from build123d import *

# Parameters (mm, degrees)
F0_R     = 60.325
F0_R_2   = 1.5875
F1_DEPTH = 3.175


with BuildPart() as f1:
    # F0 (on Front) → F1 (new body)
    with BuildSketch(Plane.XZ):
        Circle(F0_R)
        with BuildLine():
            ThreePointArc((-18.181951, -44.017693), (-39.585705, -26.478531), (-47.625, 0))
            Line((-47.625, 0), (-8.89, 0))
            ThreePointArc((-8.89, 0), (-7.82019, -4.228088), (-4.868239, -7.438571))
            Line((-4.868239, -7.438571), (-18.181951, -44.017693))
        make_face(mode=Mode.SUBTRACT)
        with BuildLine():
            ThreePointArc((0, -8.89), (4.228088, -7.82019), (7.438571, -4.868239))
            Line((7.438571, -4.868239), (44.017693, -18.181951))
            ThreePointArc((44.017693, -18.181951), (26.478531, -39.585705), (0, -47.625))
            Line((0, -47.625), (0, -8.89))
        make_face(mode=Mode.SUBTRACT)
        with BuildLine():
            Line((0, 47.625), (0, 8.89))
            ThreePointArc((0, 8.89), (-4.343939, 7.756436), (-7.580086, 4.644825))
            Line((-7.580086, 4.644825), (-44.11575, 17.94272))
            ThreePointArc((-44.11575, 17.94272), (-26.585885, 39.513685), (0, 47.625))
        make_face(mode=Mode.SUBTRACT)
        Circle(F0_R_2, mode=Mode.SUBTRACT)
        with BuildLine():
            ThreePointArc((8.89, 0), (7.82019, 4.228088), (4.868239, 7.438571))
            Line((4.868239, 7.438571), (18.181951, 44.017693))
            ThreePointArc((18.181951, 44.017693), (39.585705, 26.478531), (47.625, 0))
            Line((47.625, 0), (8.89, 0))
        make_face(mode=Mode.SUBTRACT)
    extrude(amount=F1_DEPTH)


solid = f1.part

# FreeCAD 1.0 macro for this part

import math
import FreeCAD as App
import Part
import Sketcher
Q = App.Units.Quantity

doc = App.newDocument("Part")
body = doc.addObject("PartDesign::Body", "Body")

sketch1 = body.newObject("Sketcher::SketchObject", "Sketch")
sketch1.AttachmentSupport = (doc.getObject("XZ_Plane"), [""])
sketch1.MapMode = "FlatFace"
sketch1.addGeometry(Part.Circle(App.Vector(0, 0, 0), App.Vector(0, 0, 1), 60.3), False)
sketch1.addGeometry(Part.LineSegment(App.Vector(-4.9, -7.4, 0), App.Vector(-18.2, -44, 0)), False)
sketch1.addGeometry(Part.ArcOfCircle(Part.Circle(App.Vector(0, 0, 0), App.Vector(0, 0, 1), 47.6), math.radians(180), math.radians(248)), False)
sketch1.addGeometry(Part.LineSegment(App.Vector(-47.6, 0, 0), App.Vector(-8.9, 0, 0)), False)
sketch1.addGeometry(Part.ArcOfCircle(Part.Circle(App.Vector(0, 0, 0), App.Vector(0, 0, 1), 8.9), math.radians(180), math.radians(237)), False)
sketch1.addGeometry(Part.LineSegment(App.Vector(0, -47.6, 0), App.Vector(0, -8.9, 0)), False)
sketch1.addGeometry(Part.ArcOfCircle(Part.Circle(App.Vector(0, 0, 0), App.Vector(0, 0, 1), 8.9), math.radians(-90), math.radians(-33)), False)
sketch1.addGeometry(Part.LineSegment(App.Vector(7.4, -4.9, 0), App.Vector(44, -18.2, 0)), False)
sketch1.addGeometry(Part.ArcOfCircle(Part.Circle(App.Vector(0, 0, 0), App.Vector(0, 0, 1), 47.6), math.radians(-90), math.radians(-22)), False)
sketch1.addGeometry(Part.Circle(App.Vector(0, 0, 0), App.Vector(0, 0, 1), 1.6), False)
sketch1.addGeometry(Part.ArcOfCircle(Part.Circle(App.Vector(0, 0, 0), App.Vector(0, 0, 1), 47.6), math.radians(90), math.radians(158)), False)
sketch1.addGeometry(Part.LineSegment(App.Vector(0, 47.6, 0), App.Vector(0, 8.9, 0)), False)
sketch1.addGeometry(Part.ArcOfCircle(Part.Circle(App.Vector(0, 0, 0), App.Vector(0, 0, 1), 8.9), math.radians(90), math.radians(149)), False)
sketch1.addGeometry(Part.LineSegment(App.Vector(-7.6, 4.6, 0), App.Vector(-44.1, 17.9, 0)), False)
sketch1.addGeometry(Part.LineSegment(App.Vector(47.6, 0, 0), App.Vector(8.9, 0, 0)), False)
sketch1.addGeometry(Part.ArcOfCircle(Part.Circle(App.Vector(0, 0, 0), App.Vector(0, 0, 1), 8.9), math.radians(0), math.radians(57)), False)
sketch1.addGeometry(Part.LineSegment(App.Vector(4.9, 7.4, 0), App.Vector(18.2, 44, 0)), False)
sketch1.addGeometry(Part.ArcOfCircle(Part.Circle(App.Vector(0, 0, 0), App.Vector(0, 0, 1), 47.6), math.radians(0), math.radians(68)), False)
sketch1.addConstraint(Sketcher.Constraint("Coincident", 1, 2, 2, 2))
sketch1.addConstraint(Sketcher.Constraint("Coincident", 2, 1, 3, 1))
sketch1.addConstraint(Sketcher.Constraint("Coincident", 3, 2, 4, 1))
sketch1.addConstraint(Sketcher.Constraint("Coincident", 4, 2, 1, 1))
sketch1.addConstraint(Sketcher.Constraint("Coincident", 5, 2, 6, 1))
sketch1.addConstraint(Sketcher.Constraint("Coincident", 6, 2, 7, 1))
sketch1.addConstraint(Sketcher.Constraint("Coincident", 7, 2, 8, 2))
sketch1.addConstraint(Sketcher.Constraint("Coincident", 8, 1, 5, 1))
sketch1.addConstraint(Sketcher.Constraint("Coincident", 10, 1, 11, 1))
sketch1.addConstraint(Sketcher.Constraint("Coincident", 11, 2, 12, 1))
sketch1.addConstraint(Sketcher.Constraint("Coincident", 12, 2, 13, 1))
sketch1.addConstraint(Sketcher.Constraint("Coincident", 13, 2, 10, 2))
sketch1.addConstraint(Sketcher.Constraint("Coincident", 14, 2, 15, 1))
sketch1.addConstraint(Sketcher.Constraint("Coincident", 15, 2, 16, 1))
sketch1.addConstraint(Sketcher.Constraint("Coincident", 16, 2, 17, 2))
sketch1.addConstraint(Sketcher.Constraint("Coincident", 17, 1, 14, 1))
sketch1.addConstraint(Sketcher.Constraint("Horizontal", 3))
sketch1.addConstraint(Sketcher.Constraint("Vertical", 5))
sketch1.addConstraint(Sketcher.Constraint("Vertical", 11))
sketch1.addConstraint(Sketcher.Constraint("Horizontal", 14))
sketch1.addConstraint(Sketcher.Constraint("Coincident", 0, 3, -1, 1))
sketch1.addConstraint(Sketcher.Constraint("Coincident", 2, 3, -1, 1))
sketch1.addConstraint(Sketcher.Constraint("Coincident", 4, 3, -1, 1))
sketch1.addConstraint(Sketcher.Constraint("Coincident", 6, 3, -1, 1))
sketch1.addConstraint(Sketcher.Constraint("Coincident", 8, 3, -1, 1))
sketch1.addConstraint(Sketcher.Constraint("Coincident", 9, 3, -1, 1))
sketch1.addConstraint(Sketcher.Constraint("Coincident", 10, 3, -1, 1))
sketch1.addConstraint(Sketcher.Constraint("Coincident", 12, 3, -1, 1))
sketch1.addConstraint(Sketcher.Constraint("Coincident", 15, 3, -1, 1))
sketch1.addConstraint(Sketcher.Constraint("Coincident", 17, 3, -1, 1))
sketch1.addConstraint(Sketcher.Constraint("Equal", 4, 6))
sketch1.addConstraint(Sketcher.Constraint("Equal", 2, 8))
sketch1.addConstraint(Sketcher.Constraint("Equal", 8, 10))
sketch1.addConstraint(Sketcher.Constraint("Equal", 6, 12))
sketch1.addConstraint(Sketcher.Constraint("Equal", 12, 15))
sketch1.addConstraint(Sketcher.Constraint("Equal", 10, 17))
sketch1.addConstraint(Sketcher.Constraint("PointOnObject", 2, 1, -1))
sketch1.addConstraint(Sketcher.Constraint("PointOnObject", 5, 2, -2))
sketch1.addConstraint(Sketcher.Constraint("PointOnObject", 10, 1, -2))
sketch1.addConstraint(Sketcher.Constraint("PointOnObject", 14, 2, -1))
sketch1.addConstraint(Sketcher.Constraint("Perpendicular", 1, 7))
sketch1.addConstraint(Sketcher.Constraint("Parallel", 7, 13))
sketch1.addConstraint(Sketcher.Constraint("Perpendicular", 13, 16))
sketch1.addConstraint(Sketcher.Constraint("Equal", 1, 7))
sketch1.addConstraint(Sketcher.Constraint("Equal", 7, 16))
sketch1.addConstraint(Sketcher.Constraint("Diameter", 0, Q("4.75 in")))
sketch1.addConstraint(Sketcher.Constraint("Radius", 4, Q("0.3499999 in")))
sketch1.addConstraint(Sketcher.Constraint("Diameter", 9, Q("0.125 in")))
sketch1.addConstraint(Sketcher.Constraint("Angle", 1, Q("-110.000001 deg")))
sketch1.addConstraint(Sketcher.Constraint("Radius", 2, Q("1.875 in")))
sketch1.addConstraint(Sketcher.Constraint("Distance", 1, 38.926689))
sketch1.addConstraint(Sketcher.Constraint("Distance", 13, 38.880442))
pad1 = body.newObject("PartDesign::Pad", "Pad")
pad1.Profile = sketch1
pad1.Length = Q("0.125 in")

doc.recompute()
